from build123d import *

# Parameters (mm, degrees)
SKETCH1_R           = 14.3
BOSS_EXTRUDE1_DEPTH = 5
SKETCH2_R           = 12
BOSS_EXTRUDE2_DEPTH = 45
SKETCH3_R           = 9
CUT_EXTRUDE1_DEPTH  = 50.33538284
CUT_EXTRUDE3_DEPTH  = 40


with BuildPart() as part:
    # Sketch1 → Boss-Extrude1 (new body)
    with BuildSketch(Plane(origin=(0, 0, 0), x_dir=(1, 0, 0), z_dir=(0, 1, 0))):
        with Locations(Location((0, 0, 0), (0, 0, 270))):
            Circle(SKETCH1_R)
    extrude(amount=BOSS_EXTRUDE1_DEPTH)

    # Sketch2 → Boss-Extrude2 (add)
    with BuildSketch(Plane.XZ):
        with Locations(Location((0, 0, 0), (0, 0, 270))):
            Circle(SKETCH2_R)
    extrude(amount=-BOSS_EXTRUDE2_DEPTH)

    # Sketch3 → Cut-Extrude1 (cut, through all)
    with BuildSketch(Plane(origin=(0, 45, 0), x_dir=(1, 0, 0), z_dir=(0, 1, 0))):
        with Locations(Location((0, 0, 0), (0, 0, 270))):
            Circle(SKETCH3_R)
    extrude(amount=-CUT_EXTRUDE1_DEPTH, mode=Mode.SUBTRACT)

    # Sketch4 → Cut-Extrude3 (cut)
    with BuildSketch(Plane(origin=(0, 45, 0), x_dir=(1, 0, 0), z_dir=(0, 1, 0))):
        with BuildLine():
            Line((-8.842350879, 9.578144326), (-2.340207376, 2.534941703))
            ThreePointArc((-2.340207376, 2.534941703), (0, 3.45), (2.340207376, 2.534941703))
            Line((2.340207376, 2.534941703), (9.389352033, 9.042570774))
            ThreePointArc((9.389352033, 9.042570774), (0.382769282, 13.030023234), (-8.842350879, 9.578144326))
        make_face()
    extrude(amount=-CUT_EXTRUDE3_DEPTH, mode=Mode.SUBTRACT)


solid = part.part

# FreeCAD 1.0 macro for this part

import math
import FreeCAD as App
import Part
import Sketcher
from FreeCAD import Vector

doc = App.newDocument("Part")
body = doc.addObject("PartDesign::Body", "Body")

# Sketch on XZ plane
sketch1 = body.newObject("Sketcher::SketchObject", "Sketch")
sketch1.AttachmentSupport = (doc.getObject("XZ_Plane"), [""])
sketch1.MapMode = "FlatFace"
sketch1.addGeometry(Part.Circle(Vector(0, 0, 0), Vector(0, 0, 1), 14), False)
sketch1.addConstraint(Sketcher.Constraint("Coincident", 0, 3, -1, 1))
sketch1.addConstraint(Sketcher.Constraint("Diameter", 0, 28.6))
pad1 = body.newObject("PartDesign::Pad", "Pad")
pad1.Profile = sketch1
pad1.Length = 5
pad1.Reversed = True

# Sketch on XZ plane
sketch2 = body.newObject("Sketcher::SketchObject", "Sketch001")
sketch2.AttachmentSupport = (doc.getObject("XZ_Plane"), [""])
sketch2.MapMode = "FlatFace"
sketch2.addGeometry(Part.Circle(Vector(0, 0, 0), Vector(0, 0, 1), 12), False)
sketch2.addConstraint(Sketcher.Constraint("Coincident", 0, 3, -1, 1))
sketch2.addConstraint(Sketcher.Constraint("Diameter", 0, 24.0))
pad2 = body.newObject("PartDesign::Pad", "Pad001")
pad2.Profile = sketch2
pad2.Length = 45
pad2.Reversed = True

# Sketch on XZ plane
sketch3 = body.newObject("Sketcher::SketchObject", "Sketch002")
sketch3.AttachmentSupport = (doc.getObject("XZ_Plane"), [""])
sketch3.MapMode = "FlatFace"
sketch3.AttachmentOffset = App.Placement(Vector(0, 0, -45), App.Rotation())
sketch3.addGeometry(Part.Circle(Vector(0, 0, 0), Vector(0, 0, 1), 9), False)
sketch3.addConstraint(Sketcher.Constraint("Coincident", 0, 3, -1, 1))
sketch3.addConstraint(Sketcher.Constraint("Diameter", 0, 18.0))
pocket1 = body.newObject("PartDesign::Pocket", "Pocket")
pocket1.Profile = sketch3
pocket1.Type = "ThroughAll"
pocket1.Reversed = True

# Sketch on XZ plane
sketch4 = body.newObject("Sketcher::SketchObject", "Sketch003")
sketch4.AttachmentSupport = (doc.getObject("XZ_Plane"), [""])
sketch4.MapMode = "FlatFace"
sketch4.AttachmentOffset = App.Placement(Vector(0, 0, -45), App.Rotation())
sketch4.addGeometry(Part.LineSegment(Vector(-8.8, -9.6, 0), Vector(-2.3, -2.5, 0)), False)
sketch4.addGeometry(Part.ArcOfCircle(Part.Circle(Vector(0, 0, 0), Vector(0, 0, 1), 3.5), math.radians(-133), math.radians(-47)), False)
sketch4.addGeometry(Part.LineSegment(Vector(2.3, -2.5, 0), Vector(9.4, -9, 0)), False)
sketch4.addGeometry(Part.ArcOfCircle(Part.Circle(Vector(0, 0, 0), Vector(0, 0, 1), 13), math.radians(-133), math.radians(-44)), False)
sketch4.addConstraint(Sketcher.Constraint("Coincident", 0, 2, 1, 1))
sketch4.addConstraint(Sketcher.Constraint("Coincident", 1, 2, 2, 1))
sketch4.addConstraint(Sketcher.Constraint("Coincident", 2, 2, 3, 2))
sketch4.addConstraint(Sketcher.Constraint("Coincident", 3, 1, 0, 1))
sketch4.addConstraint(Sketcher.Constraint("Coincident", 1, 3, -1, 1))
sketch4.addConstraint(Sketcher.Constraint("Coincident", 3, 3, -1, 1))
sketch4.addConstraint(Sketcher.Constraint("Perpendicular", 0, 2))
sketch4.addConstraint(Sketcher.Constraint("Horizontal", 0, 2, 1, 2))
sketch4.addConstraint(Sketcher.Constraint("Radius", 1, 3.45))
sketch4.addConstraint(Sketcher.Constraint("Radius", 3, 13.035644))
sketch4.addConstraint(Sketcher.Constraint("Distance", 2, 9.593731))
sketch4.addConstraint(Sketcher.Constraint("DistanceY", 0, 2, -1, 1, 2.534942))
pocket2 = body.newObject("PartDesign::Pocket", "Pocket001")
pocket2.Profile = sketch4
pocket2.Length = 40
pocket2.Reversed = True

doc.recompute()
